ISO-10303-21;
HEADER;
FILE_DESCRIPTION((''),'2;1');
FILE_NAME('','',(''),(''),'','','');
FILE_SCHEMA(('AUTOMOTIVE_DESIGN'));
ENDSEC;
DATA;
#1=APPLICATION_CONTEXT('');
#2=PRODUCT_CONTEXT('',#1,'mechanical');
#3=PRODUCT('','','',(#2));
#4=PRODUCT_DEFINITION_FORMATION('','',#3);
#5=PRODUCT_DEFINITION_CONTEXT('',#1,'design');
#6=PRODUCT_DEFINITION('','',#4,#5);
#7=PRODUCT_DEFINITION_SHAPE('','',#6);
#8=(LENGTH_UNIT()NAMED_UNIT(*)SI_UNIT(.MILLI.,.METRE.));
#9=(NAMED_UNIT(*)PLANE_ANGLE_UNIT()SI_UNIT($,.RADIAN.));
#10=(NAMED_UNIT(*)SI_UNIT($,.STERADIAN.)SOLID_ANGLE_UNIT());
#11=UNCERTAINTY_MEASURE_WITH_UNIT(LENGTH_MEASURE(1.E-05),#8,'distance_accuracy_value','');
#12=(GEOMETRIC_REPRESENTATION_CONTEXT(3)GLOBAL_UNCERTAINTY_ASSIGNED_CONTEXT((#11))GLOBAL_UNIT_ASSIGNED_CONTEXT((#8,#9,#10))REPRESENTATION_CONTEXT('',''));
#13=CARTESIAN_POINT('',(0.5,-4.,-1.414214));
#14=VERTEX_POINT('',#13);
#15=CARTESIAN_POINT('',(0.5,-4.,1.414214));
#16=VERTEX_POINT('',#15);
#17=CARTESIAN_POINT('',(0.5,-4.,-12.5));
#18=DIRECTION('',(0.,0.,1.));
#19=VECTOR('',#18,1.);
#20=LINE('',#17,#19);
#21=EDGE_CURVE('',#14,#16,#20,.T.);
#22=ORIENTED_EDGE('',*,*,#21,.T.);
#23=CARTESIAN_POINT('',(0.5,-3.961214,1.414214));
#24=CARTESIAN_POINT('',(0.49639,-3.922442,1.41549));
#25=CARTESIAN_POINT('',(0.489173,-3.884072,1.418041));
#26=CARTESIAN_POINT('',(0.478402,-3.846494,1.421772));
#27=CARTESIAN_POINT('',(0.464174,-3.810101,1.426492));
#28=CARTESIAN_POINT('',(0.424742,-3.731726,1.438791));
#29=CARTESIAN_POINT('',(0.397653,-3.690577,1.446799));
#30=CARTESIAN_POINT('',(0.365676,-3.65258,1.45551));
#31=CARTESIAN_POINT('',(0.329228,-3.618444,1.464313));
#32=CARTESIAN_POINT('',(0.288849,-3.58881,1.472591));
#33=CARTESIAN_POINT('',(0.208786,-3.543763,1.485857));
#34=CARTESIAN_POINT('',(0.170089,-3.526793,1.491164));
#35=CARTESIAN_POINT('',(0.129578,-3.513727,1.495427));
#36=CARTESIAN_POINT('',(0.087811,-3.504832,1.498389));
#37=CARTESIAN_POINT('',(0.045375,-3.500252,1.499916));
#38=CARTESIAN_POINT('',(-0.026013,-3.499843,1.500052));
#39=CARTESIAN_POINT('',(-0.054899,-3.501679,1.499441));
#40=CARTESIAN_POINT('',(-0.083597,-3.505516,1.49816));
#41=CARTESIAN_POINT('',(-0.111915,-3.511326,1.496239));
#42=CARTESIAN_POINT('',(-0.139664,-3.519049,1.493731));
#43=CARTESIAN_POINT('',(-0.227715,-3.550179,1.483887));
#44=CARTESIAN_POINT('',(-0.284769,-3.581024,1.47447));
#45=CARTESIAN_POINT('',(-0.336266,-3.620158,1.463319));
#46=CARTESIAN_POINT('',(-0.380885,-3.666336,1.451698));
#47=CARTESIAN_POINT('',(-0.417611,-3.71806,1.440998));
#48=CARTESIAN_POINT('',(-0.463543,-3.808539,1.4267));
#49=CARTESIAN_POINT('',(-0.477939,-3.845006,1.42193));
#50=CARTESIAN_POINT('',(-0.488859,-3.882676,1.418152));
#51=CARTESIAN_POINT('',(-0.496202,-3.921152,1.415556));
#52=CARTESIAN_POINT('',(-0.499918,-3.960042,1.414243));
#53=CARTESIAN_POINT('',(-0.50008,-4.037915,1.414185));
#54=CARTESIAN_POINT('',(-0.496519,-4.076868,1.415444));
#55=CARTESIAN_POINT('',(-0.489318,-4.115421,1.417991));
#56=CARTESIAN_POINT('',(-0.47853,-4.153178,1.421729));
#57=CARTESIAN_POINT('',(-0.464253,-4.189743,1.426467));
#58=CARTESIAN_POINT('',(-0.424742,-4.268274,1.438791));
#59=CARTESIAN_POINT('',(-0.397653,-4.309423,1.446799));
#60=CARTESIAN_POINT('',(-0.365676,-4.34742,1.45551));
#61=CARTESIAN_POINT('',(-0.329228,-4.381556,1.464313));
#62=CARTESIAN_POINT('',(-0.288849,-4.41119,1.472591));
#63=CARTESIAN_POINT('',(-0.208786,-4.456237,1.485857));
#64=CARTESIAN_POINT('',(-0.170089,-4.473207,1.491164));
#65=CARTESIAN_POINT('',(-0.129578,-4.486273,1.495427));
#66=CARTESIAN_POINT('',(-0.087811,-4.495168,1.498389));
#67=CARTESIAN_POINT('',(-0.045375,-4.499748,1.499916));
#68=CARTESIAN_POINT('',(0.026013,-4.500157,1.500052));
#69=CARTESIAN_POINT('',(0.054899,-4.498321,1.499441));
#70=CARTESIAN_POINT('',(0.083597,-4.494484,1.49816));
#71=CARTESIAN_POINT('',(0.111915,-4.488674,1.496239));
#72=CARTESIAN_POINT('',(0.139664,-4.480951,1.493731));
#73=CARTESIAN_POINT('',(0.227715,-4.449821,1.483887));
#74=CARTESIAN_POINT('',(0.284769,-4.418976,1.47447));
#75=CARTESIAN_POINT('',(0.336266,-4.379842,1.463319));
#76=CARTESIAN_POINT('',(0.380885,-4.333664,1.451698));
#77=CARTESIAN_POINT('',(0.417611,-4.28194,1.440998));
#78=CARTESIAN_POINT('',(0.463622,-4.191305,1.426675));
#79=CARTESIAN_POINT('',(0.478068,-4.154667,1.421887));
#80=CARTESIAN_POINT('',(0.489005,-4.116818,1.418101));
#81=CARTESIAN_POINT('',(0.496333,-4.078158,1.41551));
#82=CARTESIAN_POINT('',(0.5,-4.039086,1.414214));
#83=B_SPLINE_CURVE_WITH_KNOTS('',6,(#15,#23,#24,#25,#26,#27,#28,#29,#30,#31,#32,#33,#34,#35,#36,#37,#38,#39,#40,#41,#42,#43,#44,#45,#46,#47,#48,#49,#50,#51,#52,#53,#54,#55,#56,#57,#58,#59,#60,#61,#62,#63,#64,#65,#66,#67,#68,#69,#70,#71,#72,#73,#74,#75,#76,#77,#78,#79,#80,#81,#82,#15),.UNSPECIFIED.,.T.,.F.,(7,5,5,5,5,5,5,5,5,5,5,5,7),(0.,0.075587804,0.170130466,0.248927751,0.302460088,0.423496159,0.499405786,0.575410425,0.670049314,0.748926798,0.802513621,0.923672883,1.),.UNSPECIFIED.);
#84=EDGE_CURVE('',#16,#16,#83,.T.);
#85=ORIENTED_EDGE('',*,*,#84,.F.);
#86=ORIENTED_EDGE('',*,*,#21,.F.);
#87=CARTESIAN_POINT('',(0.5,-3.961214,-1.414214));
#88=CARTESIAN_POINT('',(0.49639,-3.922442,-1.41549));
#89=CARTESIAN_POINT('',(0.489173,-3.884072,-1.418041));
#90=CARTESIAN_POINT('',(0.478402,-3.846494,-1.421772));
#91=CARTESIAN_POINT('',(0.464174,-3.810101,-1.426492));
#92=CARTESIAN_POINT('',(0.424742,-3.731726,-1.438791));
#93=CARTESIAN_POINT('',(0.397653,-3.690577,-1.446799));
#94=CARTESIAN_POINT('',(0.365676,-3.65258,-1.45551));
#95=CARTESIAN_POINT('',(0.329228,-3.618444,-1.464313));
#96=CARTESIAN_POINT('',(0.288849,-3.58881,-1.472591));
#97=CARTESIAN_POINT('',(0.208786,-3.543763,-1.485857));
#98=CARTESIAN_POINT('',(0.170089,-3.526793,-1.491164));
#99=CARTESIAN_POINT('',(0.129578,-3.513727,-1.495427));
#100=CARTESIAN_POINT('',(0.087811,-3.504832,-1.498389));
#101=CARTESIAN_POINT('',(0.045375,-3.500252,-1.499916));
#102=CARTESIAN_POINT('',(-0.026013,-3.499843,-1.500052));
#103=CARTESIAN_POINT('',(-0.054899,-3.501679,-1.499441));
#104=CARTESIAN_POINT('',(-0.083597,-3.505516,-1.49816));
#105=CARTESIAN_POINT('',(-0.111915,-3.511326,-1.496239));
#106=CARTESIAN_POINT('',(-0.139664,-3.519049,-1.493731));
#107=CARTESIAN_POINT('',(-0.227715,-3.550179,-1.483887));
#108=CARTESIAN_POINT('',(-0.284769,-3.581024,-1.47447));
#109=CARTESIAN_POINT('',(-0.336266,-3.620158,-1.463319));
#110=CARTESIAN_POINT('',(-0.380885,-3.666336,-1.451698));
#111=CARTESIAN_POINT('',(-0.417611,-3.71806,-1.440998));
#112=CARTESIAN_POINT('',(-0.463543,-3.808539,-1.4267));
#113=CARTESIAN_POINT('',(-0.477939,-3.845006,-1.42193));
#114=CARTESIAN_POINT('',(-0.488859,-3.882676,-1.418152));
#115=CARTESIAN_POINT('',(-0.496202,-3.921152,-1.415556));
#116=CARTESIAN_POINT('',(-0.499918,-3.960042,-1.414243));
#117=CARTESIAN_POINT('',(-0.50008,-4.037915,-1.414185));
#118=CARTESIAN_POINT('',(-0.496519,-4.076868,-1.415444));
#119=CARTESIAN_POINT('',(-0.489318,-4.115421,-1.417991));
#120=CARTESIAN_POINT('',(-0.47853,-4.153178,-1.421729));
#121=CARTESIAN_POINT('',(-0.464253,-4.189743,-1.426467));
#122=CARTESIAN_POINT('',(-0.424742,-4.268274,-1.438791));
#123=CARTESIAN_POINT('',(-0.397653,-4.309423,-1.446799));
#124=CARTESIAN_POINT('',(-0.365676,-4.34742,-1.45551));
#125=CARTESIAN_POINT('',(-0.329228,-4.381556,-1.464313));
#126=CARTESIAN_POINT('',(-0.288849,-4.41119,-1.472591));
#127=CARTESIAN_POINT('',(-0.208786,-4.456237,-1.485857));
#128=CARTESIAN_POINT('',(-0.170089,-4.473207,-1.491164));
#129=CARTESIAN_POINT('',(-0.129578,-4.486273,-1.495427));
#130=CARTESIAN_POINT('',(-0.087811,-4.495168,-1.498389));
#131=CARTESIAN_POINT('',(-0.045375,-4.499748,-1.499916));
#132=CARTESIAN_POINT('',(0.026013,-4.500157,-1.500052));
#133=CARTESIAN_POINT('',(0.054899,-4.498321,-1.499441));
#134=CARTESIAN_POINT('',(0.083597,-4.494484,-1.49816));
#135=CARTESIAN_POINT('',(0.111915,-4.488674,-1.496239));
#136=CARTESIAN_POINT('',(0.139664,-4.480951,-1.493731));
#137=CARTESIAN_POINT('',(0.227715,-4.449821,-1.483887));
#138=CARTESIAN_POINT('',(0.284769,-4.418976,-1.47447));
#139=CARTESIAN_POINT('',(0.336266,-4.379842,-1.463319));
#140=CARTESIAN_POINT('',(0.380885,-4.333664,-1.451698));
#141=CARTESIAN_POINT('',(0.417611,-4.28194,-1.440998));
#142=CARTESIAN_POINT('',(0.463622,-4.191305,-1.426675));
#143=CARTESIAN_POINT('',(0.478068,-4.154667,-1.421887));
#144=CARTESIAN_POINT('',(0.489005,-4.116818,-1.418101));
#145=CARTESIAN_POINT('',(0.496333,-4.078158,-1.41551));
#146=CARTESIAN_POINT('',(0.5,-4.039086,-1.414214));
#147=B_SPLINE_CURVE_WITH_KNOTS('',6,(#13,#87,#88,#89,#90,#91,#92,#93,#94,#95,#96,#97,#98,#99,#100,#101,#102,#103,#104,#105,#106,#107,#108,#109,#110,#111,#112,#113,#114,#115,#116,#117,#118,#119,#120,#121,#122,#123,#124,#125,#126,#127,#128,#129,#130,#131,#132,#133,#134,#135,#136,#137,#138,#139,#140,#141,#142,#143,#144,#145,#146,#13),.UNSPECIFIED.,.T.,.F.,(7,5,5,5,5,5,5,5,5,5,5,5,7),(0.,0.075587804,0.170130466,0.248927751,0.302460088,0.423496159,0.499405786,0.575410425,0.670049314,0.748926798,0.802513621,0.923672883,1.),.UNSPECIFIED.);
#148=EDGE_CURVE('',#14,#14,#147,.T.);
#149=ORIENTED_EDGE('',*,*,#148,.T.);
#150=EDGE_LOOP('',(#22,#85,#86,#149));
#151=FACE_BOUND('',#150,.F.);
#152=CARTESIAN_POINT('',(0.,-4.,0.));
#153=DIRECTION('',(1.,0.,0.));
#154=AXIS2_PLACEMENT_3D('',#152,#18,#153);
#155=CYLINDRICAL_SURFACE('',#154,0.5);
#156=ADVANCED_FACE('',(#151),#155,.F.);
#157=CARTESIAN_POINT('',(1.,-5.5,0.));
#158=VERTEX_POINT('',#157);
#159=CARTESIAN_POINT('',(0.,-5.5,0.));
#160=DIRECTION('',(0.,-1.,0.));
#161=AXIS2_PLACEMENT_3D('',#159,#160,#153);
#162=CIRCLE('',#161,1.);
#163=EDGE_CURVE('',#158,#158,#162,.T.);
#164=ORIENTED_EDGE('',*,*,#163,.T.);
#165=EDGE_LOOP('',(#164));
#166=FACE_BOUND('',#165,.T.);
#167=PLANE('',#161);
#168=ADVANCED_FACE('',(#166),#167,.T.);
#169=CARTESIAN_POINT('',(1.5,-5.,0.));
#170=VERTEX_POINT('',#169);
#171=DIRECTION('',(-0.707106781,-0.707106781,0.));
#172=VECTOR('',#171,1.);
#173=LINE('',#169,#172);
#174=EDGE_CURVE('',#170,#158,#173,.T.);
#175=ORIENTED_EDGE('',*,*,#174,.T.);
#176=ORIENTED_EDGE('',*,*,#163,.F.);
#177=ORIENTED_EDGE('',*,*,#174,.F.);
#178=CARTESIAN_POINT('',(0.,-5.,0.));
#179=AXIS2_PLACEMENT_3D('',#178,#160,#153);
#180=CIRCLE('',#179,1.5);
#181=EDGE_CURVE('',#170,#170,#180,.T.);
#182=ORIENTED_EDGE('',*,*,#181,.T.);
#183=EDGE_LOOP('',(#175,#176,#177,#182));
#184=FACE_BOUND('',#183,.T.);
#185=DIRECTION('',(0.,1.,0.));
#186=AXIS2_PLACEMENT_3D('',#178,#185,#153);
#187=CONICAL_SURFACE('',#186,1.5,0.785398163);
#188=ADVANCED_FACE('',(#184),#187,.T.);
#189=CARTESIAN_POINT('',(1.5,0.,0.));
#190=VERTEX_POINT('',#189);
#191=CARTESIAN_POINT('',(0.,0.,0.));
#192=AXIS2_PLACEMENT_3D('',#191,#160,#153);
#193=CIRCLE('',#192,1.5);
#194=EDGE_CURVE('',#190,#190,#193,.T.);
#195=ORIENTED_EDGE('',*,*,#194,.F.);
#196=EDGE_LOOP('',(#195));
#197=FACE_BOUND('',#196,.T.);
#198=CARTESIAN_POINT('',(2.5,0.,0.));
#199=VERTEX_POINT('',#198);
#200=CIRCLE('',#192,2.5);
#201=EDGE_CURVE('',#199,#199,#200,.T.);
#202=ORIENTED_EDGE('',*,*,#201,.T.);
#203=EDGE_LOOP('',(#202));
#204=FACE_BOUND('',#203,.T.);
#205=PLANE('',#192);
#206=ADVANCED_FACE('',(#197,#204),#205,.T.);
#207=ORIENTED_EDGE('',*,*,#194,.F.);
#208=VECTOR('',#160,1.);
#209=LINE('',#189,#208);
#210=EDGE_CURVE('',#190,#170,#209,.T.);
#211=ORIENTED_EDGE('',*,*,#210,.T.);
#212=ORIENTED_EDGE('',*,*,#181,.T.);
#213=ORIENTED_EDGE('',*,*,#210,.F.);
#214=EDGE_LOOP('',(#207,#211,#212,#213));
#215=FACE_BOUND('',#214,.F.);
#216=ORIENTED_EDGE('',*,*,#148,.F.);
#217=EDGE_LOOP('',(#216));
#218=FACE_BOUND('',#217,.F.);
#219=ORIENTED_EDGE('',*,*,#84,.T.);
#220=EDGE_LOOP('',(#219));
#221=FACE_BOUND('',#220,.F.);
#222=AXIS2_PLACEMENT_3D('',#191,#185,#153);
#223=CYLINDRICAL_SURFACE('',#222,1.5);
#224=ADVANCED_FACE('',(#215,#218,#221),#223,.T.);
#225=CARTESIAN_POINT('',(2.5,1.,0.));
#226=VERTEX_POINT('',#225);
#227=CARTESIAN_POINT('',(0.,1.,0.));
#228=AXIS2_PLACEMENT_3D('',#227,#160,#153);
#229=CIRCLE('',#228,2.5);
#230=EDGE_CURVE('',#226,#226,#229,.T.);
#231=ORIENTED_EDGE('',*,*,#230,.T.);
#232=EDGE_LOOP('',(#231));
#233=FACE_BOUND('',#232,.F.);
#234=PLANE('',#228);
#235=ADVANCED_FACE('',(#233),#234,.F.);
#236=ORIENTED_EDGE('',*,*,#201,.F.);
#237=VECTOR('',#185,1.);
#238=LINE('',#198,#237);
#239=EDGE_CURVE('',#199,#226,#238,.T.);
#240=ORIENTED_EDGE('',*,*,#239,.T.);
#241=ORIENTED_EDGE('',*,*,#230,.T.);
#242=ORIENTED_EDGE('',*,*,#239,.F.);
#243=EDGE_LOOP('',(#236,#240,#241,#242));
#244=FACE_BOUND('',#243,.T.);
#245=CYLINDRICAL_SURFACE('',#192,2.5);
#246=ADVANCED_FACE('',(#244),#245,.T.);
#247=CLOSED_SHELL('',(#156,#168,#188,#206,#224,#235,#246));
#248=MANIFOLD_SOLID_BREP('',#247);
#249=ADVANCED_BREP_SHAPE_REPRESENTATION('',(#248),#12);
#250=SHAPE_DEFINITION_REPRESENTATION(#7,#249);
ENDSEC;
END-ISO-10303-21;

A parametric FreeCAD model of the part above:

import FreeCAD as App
import Part
import Sketcher

V = App.Vector
Q = App.Units.Quantity


def edges_at(feature, points):
    """Names of the edges that pass closest to the given points."""
    edges = feature.Shape.Edges
    near = lambda p: min(range(len(edges)), key=lambda i: edges[i].distToShape(Part.Vertex(*p))[0])
    return sorted({f"Edge{near(p) + 1}" for p in points})

doc = App.newDocument("Part")
body = doc.addObject("PartDesign::Body", "Body")

# Sketch on XZ plane
sketch1 = doc.addObject("Sketcher::SketchObject", "Sketch")
body.addObject(sketch1)
sketch1.AttachmentSupport = (doc.XZ_Plane, [""])
sketch1.MapMode = "FlatFace"
sketch1.addGeometry(Part.Circle(V(0, 0, 0), V(0, 0, 1), 1.5), False)
sketch1.addConstraint([
    Sketcher.Constraint("Coincident", 0, 3, -1, 1),
    Sketcher.Constraint("Diameter", 0, Q("3 mm")),
])
pad1 = doc.addObject("PartDesign::Pad", "Pad")
body.addObject(pad1)
pad1.Profile = sketch1
pad1.Length = 5.5

# Sketch on XZ plane
sketch2 = doc.addObject("Sketcher::SketchObject", "Sketch001")
body.addObject(sketch2)
sketch2.AttachmentSupport = (doc.XZ_Plane, [""])
sketch2.MapMode = "FlatFace"
sketch2.addGeometry(Part.Circle(V(0, 0, 0), V(0, 0, 1), 2.5), False)
sketch2.addConstraint([
    Sketcher.Constraint("Coincident", 0, 3, -1, 1),
    Sketcher.Constraint("Diameter", 0, Q("5 mm")),
])
pad2 = doc.addObject("PartDesign::Pad", "Pad001")
body.addObject(pad2)
pad2.Profile = sketch2
pad2.Length = 1
pad2.Reversed = True
doc.recompute()

chamfer = doc.addObject("PartDesign::Chamfer", "Chamfer")
body.addObject(chamfer)
chamfer.Base = (pad2, edges_at(pad2, [(-1.5, -5.5, 0)]))
chamfer.Size = 0.5

# Sketch on XY plane
sketch3 = doc.addObject("Sketcher::SketchObject", "Sketch002")
body.addObject(sketch3)
sketch3.AttachmentSupport = (doc.XY_Plane, [""])
sketch3.MapMode = "FlatFace"
sketch3.addGeometry(Part.Circle(V(0, -4, 0), V(0, 0, 1), 0.5), False)
sketch3.addConstraint([
    Sketcher.Constraint("PointOnObject", 0, 3, -2),
    Sketcher.Constraint("Diameter", 0, Q("1 mm")),
    Sketcher.Constraint("DistanceY", 0, 3, -1, 1, Q("4 mm")),
])
pocket1 = doc.addObject("PartDesign::Pocket", "Pocket")
body.addObject(pocket1)
pocket1.Profile = sketch3
pocket1.Length = 25
pocket1.Midplane = True

doc.recompute()
